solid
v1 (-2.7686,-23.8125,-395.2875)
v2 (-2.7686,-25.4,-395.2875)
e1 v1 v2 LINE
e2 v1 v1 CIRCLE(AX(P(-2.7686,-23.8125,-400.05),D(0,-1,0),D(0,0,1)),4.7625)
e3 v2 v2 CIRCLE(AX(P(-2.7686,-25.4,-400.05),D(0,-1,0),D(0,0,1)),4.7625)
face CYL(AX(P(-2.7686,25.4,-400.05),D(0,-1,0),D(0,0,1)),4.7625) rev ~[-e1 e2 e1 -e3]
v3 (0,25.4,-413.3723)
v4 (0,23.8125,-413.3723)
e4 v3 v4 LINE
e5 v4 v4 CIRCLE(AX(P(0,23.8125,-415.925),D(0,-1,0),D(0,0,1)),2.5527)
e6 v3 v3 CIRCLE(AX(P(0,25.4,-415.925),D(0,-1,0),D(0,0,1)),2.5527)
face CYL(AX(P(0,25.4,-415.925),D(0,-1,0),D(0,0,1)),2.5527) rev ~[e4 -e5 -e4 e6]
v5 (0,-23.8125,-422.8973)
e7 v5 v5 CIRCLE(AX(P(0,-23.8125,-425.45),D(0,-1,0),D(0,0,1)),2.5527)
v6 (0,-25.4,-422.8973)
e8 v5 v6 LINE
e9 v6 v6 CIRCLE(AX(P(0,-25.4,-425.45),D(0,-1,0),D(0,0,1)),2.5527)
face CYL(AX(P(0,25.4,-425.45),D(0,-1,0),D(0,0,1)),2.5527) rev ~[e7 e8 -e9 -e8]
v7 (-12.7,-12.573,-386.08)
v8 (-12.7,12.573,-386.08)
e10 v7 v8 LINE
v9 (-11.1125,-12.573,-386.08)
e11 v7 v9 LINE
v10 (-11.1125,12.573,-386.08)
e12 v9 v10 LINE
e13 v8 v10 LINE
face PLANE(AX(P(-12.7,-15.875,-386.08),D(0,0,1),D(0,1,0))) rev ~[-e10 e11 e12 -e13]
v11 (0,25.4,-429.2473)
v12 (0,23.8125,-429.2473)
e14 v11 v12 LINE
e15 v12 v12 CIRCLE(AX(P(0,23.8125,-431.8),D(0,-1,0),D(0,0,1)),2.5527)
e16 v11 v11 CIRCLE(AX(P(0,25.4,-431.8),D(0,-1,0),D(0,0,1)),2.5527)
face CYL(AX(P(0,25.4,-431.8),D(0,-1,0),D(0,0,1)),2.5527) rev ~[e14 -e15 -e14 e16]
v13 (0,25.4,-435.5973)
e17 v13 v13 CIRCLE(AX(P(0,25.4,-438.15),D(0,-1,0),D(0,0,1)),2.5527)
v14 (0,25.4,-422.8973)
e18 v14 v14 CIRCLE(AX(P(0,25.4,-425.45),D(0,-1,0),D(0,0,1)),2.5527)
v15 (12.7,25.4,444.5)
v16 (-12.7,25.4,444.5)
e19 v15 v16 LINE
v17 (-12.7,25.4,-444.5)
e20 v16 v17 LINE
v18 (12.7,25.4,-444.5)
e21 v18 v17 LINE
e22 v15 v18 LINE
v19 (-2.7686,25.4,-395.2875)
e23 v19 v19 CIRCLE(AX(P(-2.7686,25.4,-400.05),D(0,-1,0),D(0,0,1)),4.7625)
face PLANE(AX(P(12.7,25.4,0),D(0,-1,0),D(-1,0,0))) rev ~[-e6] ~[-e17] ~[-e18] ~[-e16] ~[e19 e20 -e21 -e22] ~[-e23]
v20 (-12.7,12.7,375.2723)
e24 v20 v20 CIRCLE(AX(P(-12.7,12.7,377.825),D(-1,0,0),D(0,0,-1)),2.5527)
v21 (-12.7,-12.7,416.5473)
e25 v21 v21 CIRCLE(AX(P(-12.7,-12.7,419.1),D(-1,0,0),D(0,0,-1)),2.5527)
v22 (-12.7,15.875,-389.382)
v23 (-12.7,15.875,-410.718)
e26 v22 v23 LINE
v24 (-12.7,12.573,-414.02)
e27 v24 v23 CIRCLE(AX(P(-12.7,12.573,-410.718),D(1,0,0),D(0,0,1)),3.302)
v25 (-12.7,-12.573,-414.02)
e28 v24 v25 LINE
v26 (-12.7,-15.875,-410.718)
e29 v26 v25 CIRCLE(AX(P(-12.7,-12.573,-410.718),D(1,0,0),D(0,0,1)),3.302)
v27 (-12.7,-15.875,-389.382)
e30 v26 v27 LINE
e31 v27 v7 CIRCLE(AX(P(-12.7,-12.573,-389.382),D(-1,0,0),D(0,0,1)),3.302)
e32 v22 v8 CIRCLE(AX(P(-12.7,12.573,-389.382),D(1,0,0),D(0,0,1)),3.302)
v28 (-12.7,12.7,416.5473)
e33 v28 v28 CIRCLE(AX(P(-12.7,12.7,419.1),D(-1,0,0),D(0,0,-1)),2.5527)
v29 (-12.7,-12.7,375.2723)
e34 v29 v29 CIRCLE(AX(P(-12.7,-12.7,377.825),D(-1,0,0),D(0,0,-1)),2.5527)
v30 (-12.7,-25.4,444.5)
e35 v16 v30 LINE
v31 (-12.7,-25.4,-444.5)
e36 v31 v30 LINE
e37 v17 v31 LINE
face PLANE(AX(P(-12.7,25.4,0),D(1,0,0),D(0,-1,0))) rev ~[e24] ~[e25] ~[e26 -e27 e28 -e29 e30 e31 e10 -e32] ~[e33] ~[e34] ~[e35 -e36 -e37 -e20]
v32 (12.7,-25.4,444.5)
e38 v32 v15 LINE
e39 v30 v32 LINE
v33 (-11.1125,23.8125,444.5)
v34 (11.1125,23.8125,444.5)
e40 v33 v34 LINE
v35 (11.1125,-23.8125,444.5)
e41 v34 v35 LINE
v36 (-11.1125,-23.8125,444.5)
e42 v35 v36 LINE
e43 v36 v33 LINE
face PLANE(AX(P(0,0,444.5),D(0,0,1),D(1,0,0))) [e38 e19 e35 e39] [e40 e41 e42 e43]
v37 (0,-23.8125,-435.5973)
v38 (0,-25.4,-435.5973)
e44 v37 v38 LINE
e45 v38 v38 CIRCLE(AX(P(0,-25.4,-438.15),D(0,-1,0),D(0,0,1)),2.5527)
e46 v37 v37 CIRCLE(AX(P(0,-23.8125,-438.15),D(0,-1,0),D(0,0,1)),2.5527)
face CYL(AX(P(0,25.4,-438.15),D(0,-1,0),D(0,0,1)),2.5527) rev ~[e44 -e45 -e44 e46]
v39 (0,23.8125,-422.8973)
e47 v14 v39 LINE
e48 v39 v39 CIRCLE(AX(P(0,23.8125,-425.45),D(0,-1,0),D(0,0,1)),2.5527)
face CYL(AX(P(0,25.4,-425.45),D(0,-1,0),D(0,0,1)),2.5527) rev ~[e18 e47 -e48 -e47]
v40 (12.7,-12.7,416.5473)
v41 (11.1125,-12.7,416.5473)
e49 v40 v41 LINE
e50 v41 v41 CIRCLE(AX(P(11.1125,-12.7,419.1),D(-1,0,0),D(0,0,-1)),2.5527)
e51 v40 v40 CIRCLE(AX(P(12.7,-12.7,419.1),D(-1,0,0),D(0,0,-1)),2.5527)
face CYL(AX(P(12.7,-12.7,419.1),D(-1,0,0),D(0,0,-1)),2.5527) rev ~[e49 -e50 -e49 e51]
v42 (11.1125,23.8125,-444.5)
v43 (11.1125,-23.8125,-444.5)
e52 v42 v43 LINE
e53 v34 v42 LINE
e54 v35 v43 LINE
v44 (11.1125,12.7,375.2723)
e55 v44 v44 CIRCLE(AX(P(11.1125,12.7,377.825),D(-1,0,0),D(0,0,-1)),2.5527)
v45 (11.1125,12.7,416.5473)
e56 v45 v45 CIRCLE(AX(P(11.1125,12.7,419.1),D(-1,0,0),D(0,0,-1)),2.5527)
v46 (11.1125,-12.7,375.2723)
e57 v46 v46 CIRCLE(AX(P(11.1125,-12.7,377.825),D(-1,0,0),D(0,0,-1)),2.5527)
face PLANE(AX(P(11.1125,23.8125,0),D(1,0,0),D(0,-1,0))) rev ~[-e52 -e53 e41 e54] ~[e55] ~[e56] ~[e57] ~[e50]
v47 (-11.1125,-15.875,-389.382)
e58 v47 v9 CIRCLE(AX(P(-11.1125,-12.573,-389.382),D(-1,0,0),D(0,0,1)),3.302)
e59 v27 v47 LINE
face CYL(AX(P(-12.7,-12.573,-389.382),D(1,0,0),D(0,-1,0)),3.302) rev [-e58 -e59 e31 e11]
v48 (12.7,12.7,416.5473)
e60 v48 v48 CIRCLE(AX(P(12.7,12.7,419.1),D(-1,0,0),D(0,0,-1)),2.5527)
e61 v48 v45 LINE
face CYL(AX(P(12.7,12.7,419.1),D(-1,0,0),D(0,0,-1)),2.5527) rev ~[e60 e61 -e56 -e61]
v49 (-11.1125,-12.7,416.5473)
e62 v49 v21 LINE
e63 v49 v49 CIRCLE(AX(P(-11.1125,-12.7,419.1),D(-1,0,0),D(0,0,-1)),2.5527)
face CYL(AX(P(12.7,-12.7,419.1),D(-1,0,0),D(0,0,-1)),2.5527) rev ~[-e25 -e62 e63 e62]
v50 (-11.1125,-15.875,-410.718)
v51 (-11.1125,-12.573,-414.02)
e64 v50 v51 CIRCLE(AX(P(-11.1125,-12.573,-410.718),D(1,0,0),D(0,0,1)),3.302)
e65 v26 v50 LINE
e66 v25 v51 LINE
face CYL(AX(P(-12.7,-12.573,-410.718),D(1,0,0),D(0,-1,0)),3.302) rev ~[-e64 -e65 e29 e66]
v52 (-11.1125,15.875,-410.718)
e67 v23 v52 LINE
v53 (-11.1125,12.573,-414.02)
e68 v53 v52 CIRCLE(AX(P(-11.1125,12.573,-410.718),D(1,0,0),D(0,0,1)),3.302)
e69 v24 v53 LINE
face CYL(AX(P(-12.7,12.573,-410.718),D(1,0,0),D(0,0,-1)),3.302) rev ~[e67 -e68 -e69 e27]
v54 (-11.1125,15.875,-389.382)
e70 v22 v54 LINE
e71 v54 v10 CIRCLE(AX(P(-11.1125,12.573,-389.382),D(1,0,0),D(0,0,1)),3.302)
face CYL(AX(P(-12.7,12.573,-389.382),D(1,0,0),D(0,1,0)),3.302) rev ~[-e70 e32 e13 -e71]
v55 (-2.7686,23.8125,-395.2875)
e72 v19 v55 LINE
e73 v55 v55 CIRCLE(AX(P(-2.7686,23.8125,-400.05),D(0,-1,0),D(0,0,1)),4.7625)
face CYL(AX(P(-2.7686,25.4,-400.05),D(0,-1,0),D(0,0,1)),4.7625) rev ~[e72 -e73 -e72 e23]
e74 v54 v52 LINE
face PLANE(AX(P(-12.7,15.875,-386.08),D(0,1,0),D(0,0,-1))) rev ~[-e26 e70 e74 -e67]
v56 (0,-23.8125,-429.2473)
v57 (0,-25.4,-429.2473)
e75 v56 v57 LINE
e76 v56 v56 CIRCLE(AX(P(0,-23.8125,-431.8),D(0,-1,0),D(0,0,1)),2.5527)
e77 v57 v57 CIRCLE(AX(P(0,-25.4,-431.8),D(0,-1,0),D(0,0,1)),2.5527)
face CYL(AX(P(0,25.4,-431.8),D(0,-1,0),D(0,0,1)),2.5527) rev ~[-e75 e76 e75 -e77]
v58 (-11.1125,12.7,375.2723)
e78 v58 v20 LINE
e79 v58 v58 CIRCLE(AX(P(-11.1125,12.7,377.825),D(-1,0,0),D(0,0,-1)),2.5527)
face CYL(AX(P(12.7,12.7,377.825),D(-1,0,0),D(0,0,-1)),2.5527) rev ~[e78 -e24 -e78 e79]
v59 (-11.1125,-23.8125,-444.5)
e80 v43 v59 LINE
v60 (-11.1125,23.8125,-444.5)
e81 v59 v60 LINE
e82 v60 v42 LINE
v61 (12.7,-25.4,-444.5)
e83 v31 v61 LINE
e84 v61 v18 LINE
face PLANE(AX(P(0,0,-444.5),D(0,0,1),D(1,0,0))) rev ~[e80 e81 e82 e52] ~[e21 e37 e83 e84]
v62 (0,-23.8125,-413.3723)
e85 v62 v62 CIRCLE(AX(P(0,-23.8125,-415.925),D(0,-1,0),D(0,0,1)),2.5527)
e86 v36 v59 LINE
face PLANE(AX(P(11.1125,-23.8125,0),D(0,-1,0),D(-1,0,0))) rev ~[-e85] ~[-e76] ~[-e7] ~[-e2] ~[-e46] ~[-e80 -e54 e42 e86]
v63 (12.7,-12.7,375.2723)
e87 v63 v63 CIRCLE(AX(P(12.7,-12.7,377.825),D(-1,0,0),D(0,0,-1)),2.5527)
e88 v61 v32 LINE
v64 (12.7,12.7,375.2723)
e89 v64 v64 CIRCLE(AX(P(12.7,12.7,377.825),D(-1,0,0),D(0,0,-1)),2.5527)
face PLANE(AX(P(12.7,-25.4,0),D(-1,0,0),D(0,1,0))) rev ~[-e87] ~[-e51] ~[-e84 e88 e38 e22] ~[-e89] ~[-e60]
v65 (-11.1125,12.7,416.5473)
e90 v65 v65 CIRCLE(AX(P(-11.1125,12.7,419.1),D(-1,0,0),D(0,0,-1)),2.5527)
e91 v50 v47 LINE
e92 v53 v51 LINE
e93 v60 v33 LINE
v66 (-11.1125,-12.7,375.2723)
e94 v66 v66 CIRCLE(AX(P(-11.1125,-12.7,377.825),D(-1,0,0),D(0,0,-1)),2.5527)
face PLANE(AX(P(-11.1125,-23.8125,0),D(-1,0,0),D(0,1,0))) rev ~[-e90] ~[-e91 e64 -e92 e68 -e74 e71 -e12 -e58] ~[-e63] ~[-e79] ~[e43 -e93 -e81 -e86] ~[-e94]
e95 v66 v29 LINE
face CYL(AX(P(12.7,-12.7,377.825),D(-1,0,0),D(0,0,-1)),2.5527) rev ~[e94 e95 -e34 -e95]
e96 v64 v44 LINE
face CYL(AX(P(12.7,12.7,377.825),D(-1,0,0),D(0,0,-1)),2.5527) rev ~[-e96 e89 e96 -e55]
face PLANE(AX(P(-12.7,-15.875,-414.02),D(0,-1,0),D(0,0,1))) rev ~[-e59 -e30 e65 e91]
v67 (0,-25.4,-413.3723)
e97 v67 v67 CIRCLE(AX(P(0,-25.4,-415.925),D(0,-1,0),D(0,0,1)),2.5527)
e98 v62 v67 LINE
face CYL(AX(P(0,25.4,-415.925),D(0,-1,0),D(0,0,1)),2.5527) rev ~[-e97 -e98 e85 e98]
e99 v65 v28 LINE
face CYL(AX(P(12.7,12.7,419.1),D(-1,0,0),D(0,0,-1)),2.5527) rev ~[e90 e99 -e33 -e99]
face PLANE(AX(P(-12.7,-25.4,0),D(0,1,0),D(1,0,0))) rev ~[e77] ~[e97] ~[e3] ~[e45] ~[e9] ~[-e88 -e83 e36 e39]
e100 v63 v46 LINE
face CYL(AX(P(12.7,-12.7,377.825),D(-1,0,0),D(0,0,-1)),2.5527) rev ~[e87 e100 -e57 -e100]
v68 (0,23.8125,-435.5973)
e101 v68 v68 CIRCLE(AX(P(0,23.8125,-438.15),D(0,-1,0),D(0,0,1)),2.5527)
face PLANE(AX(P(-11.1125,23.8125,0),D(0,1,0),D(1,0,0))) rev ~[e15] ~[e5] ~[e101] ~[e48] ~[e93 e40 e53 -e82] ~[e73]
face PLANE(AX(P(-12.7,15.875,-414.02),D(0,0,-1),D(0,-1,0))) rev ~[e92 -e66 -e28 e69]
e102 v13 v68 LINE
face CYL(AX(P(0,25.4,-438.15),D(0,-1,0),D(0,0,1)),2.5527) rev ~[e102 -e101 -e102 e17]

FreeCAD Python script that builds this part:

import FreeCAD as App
import Part
import Sketcher
from FreeCAD import Vector
Q = App.Units.Quantity


def edges_at(feature, points):
    """Names of the edges that pass closest to the given points."""
    edges = feature.Shape.Edges
    near = lambda p: min(range(len(edges)), key=lambda i: edges[i].distToShape(Part.Vertex(*p))[0])
    return sorted({f"Edge{near(p) + 1}" for p in points})

doc = App.newDocument("Part")
body = doc.addObject("PartDesign::Body", "Body")

# Sketch on XY plane
sketch1 = body.newObject("Sketcher::SketchObject", "Sketch")
sketch1.AttachmentSupport = (doc.getObject("XY_Plane"), [""])
sketch1.MapMode = "FlatFace"
sketch1.addGeometry([
    Part.LineSegment(Vector(-13, 25, 0), Vector(-13, -25, 0)),  # 0
    Part.LineSegment(Vector(-13, -25, 0), Vector(13, -25, 0)),  # 1
    Part.LineSegment(Vector(13, -25, 0), Vector(13, 25, 0)),  # 2
    Part.LineSegment(Vector(13, 25, 0), Vector(-13, 25, 0)),  # 3
    Part.LineSegment(Vector(-11, -24, 0), Vector(-11, 24, 0)),  # 4
    Part.LineSegment(Vector(-11, 24, 0), Vector(11, 24, 0)),  # 5
    Part.LineSegment(Vector(11, 24, 0), Vector(11, -24, 0)),  # 6
    Part.LineSegment(Vector(11, -24, 0), Vector(-11, -24, 0)),  # 7
], False)
sketch1.addConstraint([
    Sketcher.Constraint("Coincident", 0, 2, 1, 1),
    Sketcher.Constraint("Coincident", 1, 2, 2, 1),
    Sketcher.Constraint("Coincident", 2, 2, 3, 1),
    Sketcher.Constraint("Coincident", 3, 2, 0, 1),
    Sketcher.Constraint("Coincident", 4, 2, 5, 1),
    Sketcher.Constraint("Coincident", 5, 2, 6, 1),
    Sketcher.Constraint("Coincident", 6, 2, 7, 1),
    Sketcher.Constraint("Coincident", 7, 2, 4, 1),
    Sketcher.Constraint("Vertical", 0),
    Sketcher.Constraint("Horizontal", 1),
    Sketcher.Constraint("Vertical", 2),
    Sketcher.Constraint("Horizontal", 3),
    Sketcher.Constraint("Vertical", 4),
    Sketcher.Constraint("Horizontal", 5),
    Sketcher.Constraint("Vertical", 6),
    Sketcher.Constraint("Horizontal", 7),
    Sketcher.Constraint("Symmetric", 0, 2, 2, 2, -1, 1),
    Sketcher.Constraint("Symmetric", 4, 2, 6, 2, -1, 1),
    Sketcher.Constraint("DistanceX", 1, 1, 1, 2, Q("1 in")),
    Sketcher.Constraint("DistanceY", 0, 2, 0, 1, Q("2 in")),
    Sketcher.Constraint("DistanceX", 3, 2, 4, 2, Q("0.0625 in")),
    Sketcher.Constraint("DistanceY", 4, 2, 3, 2, Q("0.0625 in")),
])
pad1 = body.newObject("PartDesign::Pad", "Pad")
pad1.Profile = sketch1
pad1.Length = Q("35 in")
pad1.Midplane = True

# Sketch on XZ plane
sketch2 = body.newObject("Sketcher::SketchObject", "Sketch001")
sketch2.AttachmentSupport = (doc.getObject("XZ_Plane"), [""])
sketch2.MapMode = "FlatFace"
sketch2.AttachmentOffset = App.Placement(Vector(0, 0, -1 * 25.4), App.Rotation())
sketch2.addGeometry([
    Part.Circle(Vector(0, -438.1, 0), Vector(0, 0, 1), 2.6),
    Part.Circle(Vector(0, -431.8, 0), Vector(0, 0, 1), 2.6),
    Part.Circle(Vector(0, -425.4, 0), Vector(0, 0, 1), 2.6),
    Part.Circle(Vector(0, -415.9, 0), Vector(0, 0, 1), 2.6),
], False)
sketch2.addConstraint([
    Sketcher.Constraint("Equal", 0, 1),
    Sketcher.Constraint("Equal", 1, 2),
    Sketcher.Constraint("Equal", 2, 3),
    Sketcher.Constraint("PointOnObject", 0, 3, -2),
    Sketcher.Constraint("PointOnObject", 1, 3, -2),
    Sketcher.Constraint("PointOnObject", 2, 3, -2),
    Sketcher.Constraint("PointOnObject", 3, 3, -2),
    Sketcher.Constraint("Diameter", 0, Q("0.201 in")),
    Sketcher.Constraint("DistanceY", 1, 3, -1, 1, Q("17 in")),
    Sketcher.Constraint("DistanceY", 0, 3, 2, 3, Q("0.5 in")),
    Sketcher.Constraint("DistanceY", 0, 3, -1, 1, Q("17.25 in")),
    Sketcher.Constraint("DistanceY", 3, 3, -1, 1, Q("16.375 in")),
])
doc.recompute()
hole = body.newObject("PartDesign::Hole", "Hole")
hole.Profile = sketch2
hole.ThreadType = "None"
hole.Diameter = Q("0.201 in")
hole.DepthType = "ThroughAll"
hole.Reversed = True

# Sketch on XZ plane
sketch3 = body.newObject("Sketcher::SketchObject", "Sketch002")
sketch3.AttachmentSupport = (doc.getObject("XZ_Plane"), [""])
sketch3.MapMode = "FlatFace"
sketch3.AttachmentOffset = App.Placement(Vector(0, 0, -1 * 25.4), App.Rotation())
sketch3.addGeometry(Part.Circle(Vector(-2.8, -400.1, 0), Vector(0, 0, 1), 4.8), False)
sketch3.addConstraint([
    Sketcher.Constraint("Diameter", 0, Q("0.375 in")),
    Sketcher.Constraint("DistanceY", 0, 3, -1, 1, Q("15.75 in")),
    Sketcher.Constraint("DistanceX", 0, 3, -1, 1, Q("0.109 in")),
])
doc.recompute()
hole2 = body.newObject("PartDesign::Hole", "Hole001")
hole2.Profile = sketch3
hole2.ThreadType = "None"
hole2.Diameter = Q("0.375 in")
hole2.DepthType = "ThroughAll"
hole2.Reversed = True

# Sketch on YZ plane
sketch4 = body.newObject("Sketcher::SketchObject", "Sketch003")
sketch4.AttachmentSupport = (doc.getObject("YZ_Plane"), [""])
sketch4.MapMode = "FlatFace"
sketch4.AttachmentOffset = App.Placement(Vector(0, 0, -0.5 * 25.4), App.Rotation())
sketch4.addGeometry([
    Part.LineSegment(Vector(-16, -386, 0), Vector(16, -386, 0)),
    Part.LineSegment(Vector(16, -386, 0), Vector(16, -414, 0)),
    Part.LineSegment(Vector(16, -414, 0), Vector(-16, -414, 0)),
    Part.LineSegment(Vector(-16, -414, 0), Vector(-16, -386, 0)),
], False)
sketch4.addConstraint([
    Sketcher.Constraint("Coincident", 0, 2, 1, 1),
    Sketcher.Constraint("Coincident", 1, 2, 2, 1),
    Sketcher.Constraint("Coincident", 2, 2, 3, 1),
    Sketcher.Constraint("Coincident", 3, 2, 0, 1),
    Sketcher.Constraint("Horizontal", 0),
    Sketcher.Constraint("Vertical", 1),
    Sketcher.Constraint("Horizontal", 2),
    Sketcher.Constraint("Vertical", 3),
    Sketcher.Constraint("DistanceY", 1, 2, 1, 1, Q("1.1 in")),
    Sketcher.Constraint("DistanceX", 0, 1, 0, 2, Q("1.25 in")),
    Sketcher.Constraint("DistanceY", 0, 2, -1, 1, Q("15.2 in")),
    Sketcher.Constraint("DistanceX", -1, 1, 0, 2, Q("0.625 in")),
])
pocket1 = body.newObject("PartDesign::Pocket", "Pocket")
pocket1.Profile = sketch4
pocket1.Length = Q("0.0625 in")
pocket1.Reversed = True
doc.recompute()

fillet = body.newObject("PartDesign::Fillet", "Fillet")
fillet.Base = (pocket1, edges_at(pocket1, [
    (-11.906, -15.875, -414.02),
    (-11.906, 15.875, -414.02),
    (-11.906, 15.875, -386.08),
    (-11.906, -15.875, -386.08),
]))
fillet.Radius = Q("0.13 in")

# Sketch on YZ plane
sketch5 = body.newObject("Sketcher::SketchObject", "Sketch004")
sketch5.AttachmentSupport = (doc.getObject("YZ_Plane"), [""])
sketch5.MapMode = "FlatFace"
sketch5.AttachmentOffset = App.Placement(Vector(0, 0, 0.5 * 25.4), App.Rotation())
sketch5.addGeometry([
    Part.Circle(Vector(12.7, 419.1, 0), Vector(0, 0, 1), 2.6),
    Part.Circle(Vector(-12.7, 419.1, 0), Vector(0, 0, 1), 2.6),
    Part.Circle(Vector(12.7, 377.8, 0), Vector(0, 0, 1), 2.6),
    Part.Circle(Vector(-12.7, 377.8, 0), Vector(0, 0, 1), 2.6),
], False)
sketch5.addConstraint([
    Sketcher.Constraint("Equal", 0, 1),
    Sketcher.Constraint("Equal", 1, 2),
    Sketcher.Constraint("Equal", 2, 3),
    Sketcher.Constraint("Symmetric", 0, 3, 1, 3, -2),
    Sketcher.Constraint("Symmetric", 2, 3, 3, 3, -2),
    Sketcher.Constraint("Vertical", 0, 3, 2, 3),
    Sketcher.Constraint("Diameter", 0, Q("0.201 in")),
    Sketcher.Constraint("DistanceX", 1, 3, 0, 3, Q("1 in")),
    Sketcher.Constraint("DistanceY", -1, 1, 0, 3, Q("16.5 in")),
    Sketcher.Constraint("DistanceY", -1, 1, 2, 3, Q("14.875 in")),
])
doc.recompute()
hole3 = body.newObject("PartDesign::Hole", "Hole002")
hole3.Profile = sketch5
hole3.ThreadType = "None"
hole3.Diameter = Q("0.201 in")
hole3.DepthType = "ThroughAll"

doc.recompute()
